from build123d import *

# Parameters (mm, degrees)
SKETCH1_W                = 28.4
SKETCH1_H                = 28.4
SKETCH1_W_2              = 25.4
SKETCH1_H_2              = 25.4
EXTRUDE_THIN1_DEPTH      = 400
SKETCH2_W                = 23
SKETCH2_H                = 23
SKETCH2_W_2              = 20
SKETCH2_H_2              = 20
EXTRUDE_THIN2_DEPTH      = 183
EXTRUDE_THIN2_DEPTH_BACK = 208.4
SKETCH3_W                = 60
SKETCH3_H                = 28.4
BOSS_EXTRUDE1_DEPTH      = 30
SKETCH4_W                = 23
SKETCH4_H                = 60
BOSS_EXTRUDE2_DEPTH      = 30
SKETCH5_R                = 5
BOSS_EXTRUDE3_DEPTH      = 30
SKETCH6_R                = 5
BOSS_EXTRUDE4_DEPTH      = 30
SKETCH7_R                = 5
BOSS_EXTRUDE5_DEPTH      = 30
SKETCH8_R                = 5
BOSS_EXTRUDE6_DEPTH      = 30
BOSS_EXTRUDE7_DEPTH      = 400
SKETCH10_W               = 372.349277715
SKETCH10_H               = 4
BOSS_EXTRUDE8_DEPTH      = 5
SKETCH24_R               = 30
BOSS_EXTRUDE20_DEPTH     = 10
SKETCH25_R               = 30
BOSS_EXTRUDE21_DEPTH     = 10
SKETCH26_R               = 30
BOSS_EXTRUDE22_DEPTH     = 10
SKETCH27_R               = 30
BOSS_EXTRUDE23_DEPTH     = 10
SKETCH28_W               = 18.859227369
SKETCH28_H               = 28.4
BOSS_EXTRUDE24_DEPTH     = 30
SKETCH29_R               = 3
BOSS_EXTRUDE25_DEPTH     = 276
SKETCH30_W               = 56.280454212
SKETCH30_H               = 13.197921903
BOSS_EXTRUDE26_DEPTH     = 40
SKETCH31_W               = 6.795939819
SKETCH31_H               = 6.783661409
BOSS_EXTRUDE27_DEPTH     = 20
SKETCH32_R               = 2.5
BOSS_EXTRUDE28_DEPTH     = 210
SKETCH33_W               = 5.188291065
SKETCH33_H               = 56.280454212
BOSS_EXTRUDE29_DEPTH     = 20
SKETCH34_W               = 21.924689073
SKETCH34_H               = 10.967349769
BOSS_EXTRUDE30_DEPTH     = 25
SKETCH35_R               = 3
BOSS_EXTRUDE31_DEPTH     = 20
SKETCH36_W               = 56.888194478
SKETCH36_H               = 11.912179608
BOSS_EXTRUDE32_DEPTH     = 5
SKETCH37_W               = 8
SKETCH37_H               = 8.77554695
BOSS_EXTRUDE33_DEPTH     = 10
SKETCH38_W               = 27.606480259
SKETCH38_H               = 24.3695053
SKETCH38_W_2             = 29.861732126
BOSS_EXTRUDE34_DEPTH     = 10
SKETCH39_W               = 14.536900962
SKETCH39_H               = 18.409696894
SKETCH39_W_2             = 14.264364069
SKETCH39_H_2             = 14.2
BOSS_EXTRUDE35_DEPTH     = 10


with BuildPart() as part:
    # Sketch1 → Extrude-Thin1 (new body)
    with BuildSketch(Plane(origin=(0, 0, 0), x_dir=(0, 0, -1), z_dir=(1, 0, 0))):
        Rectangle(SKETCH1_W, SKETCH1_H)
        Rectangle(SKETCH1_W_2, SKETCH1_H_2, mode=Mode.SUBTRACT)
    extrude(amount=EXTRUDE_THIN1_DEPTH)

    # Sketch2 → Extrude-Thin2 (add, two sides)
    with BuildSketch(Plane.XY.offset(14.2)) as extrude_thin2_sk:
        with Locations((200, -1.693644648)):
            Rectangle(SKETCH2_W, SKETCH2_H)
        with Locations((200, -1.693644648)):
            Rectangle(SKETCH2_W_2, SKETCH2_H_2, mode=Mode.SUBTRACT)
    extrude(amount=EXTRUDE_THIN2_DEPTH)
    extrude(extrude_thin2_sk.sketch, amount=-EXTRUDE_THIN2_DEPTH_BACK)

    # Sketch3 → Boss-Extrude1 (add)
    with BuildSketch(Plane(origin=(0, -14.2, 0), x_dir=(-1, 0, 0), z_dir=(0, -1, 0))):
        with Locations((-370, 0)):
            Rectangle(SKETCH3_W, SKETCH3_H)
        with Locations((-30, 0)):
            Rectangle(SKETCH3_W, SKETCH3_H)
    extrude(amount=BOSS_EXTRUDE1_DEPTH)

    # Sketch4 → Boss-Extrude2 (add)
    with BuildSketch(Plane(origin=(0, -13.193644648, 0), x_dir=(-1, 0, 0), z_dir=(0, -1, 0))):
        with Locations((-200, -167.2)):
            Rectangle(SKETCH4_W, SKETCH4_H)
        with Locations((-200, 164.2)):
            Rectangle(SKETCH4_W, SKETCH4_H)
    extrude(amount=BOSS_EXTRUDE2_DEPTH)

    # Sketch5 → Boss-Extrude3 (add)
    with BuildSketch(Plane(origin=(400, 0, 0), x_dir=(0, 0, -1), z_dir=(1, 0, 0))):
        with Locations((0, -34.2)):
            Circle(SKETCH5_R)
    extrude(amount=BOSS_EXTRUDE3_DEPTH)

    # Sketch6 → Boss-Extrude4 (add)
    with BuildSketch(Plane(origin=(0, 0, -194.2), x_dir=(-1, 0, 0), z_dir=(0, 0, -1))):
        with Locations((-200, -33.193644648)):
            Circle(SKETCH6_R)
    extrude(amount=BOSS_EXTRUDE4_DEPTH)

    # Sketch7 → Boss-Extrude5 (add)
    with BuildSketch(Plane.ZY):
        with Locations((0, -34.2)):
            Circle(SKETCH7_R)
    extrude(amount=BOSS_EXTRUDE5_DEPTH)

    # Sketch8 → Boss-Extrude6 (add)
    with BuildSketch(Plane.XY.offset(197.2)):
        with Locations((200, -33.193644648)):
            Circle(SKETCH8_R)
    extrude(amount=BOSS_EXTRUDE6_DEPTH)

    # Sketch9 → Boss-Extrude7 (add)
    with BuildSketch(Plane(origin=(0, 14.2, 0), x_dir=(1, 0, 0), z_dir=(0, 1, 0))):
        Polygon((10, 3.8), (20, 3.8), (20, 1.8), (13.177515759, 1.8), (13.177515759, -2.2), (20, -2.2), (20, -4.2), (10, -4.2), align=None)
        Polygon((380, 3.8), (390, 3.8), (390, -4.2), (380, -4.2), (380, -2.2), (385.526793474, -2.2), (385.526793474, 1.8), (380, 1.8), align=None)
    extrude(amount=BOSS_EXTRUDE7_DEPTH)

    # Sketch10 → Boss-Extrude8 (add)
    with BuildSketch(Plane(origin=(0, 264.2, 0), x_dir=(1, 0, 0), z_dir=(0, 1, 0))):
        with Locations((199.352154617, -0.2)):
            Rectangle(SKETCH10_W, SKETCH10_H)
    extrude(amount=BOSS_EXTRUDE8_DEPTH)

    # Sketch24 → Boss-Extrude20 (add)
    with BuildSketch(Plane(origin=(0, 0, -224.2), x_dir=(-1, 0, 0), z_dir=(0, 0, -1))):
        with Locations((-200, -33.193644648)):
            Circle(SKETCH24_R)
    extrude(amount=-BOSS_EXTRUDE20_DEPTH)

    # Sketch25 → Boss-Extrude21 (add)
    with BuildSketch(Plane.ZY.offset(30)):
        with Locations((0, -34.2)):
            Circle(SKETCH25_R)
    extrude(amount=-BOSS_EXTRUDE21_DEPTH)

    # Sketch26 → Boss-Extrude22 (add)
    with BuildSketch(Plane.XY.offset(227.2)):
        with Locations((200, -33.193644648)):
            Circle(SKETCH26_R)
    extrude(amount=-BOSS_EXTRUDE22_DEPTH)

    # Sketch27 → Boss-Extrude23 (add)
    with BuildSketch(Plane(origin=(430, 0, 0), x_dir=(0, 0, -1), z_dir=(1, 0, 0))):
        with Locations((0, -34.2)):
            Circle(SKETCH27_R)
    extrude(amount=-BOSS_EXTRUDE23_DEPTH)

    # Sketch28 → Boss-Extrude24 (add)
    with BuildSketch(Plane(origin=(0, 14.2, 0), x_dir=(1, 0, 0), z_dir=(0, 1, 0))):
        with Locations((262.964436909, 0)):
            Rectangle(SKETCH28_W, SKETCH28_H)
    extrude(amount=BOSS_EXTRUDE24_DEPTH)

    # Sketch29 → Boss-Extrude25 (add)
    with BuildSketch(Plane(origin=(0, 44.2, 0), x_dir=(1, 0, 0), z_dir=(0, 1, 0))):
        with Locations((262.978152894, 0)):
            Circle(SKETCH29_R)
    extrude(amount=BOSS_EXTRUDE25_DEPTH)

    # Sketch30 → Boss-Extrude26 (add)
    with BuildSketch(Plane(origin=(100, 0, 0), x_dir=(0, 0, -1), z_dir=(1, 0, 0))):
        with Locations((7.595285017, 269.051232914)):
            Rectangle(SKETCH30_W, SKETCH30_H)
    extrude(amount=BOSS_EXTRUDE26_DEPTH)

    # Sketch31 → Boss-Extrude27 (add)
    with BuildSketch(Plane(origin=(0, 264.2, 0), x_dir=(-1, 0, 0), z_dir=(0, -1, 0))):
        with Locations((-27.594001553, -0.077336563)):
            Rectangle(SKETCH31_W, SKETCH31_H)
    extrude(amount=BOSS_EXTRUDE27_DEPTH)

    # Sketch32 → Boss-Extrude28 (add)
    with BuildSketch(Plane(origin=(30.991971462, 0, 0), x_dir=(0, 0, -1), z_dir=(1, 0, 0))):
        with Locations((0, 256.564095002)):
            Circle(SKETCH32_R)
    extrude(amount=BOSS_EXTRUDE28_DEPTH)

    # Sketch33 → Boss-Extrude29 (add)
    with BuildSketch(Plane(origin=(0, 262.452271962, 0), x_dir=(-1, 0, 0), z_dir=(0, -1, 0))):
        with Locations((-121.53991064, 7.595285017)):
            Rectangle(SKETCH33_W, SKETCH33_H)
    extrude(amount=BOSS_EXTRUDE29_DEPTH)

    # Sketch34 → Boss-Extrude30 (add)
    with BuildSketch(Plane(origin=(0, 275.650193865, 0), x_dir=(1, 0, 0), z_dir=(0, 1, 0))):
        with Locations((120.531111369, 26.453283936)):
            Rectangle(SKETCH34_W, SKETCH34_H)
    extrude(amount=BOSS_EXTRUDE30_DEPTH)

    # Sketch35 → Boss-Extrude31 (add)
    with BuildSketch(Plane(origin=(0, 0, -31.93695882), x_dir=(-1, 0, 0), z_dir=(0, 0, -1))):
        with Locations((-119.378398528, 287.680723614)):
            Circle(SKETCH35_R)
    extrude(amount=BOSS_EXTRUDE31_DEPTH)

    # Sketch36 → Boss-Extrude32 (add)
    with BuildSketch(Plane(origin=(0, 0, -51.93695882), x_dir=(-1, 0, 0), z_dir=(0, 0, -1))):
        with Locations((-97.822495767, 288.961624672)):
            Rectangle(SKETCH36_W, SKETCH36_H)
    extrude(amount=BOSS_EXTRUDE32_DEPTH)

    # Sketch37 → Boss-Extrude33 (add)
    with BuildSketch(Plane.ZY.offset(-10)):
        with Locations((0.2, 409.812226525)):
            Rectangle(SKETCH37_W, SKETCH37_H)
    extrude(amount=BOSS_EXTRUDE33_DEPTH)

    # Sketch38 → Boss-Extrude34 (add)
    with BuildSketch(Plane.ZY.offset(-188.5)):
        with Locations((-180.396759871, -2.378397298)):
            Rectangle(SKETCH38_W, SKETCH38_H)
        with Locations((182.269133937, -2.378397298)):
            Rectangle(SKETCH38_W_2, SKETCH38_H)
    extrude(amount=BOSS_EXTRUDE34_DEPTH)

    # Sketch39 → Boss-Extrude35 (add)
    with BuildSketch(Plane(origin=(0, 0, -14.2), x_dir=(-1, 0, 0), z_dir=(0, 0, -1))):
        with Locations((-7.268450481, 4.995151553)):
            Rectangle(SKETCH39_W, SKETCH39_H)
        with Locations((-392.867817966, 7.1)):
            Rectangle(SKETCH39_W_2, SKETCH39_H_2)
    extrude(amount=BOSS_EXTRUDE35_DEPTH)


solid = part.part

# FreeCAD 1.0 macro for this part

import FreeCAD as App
import Part
import Sketcher

V = App.Vector
Q = App.Units.Quantity


def add_polygon(sketch, points):
    """Adds a closed chain of lines whose ends are joined by coincident constraints."""
    first, n = sketch.GeometryCount, len(points)
    for a, b in zip(points, points[1:] + points[:1]):
        sketch.addGeometry(Part.LineSegment(App.Vector(*a, 0), App.Vector(*b, 0)), False)
    for i in range(n):
        sketch.addConstraint(Sketcher.Constraint("Coincident", first + i, 2, first + (i + 1) % n, 1))

doc = App.newDocument("Part")
body = doc.addObject("PartDesign::Body", "Body")

sketch1 = doc.addObject("Sketcher::SketchObject", "Sketch")
body.addObject(sketch1)
sketch1.AttachmentSupport = (doc.YZ_Plane, [""])
sketch1.MapMode = "FlatFace"
add_polygon(sketch1, [(14, 14), (-14, 14), (-14, -14), (14, -14)])
add_polygon(sketch1, [(-13, -13), (-13, 13), (13, 13), (13, -13)])
sketch1.addConstraint([
    Sketcher.Constraint("Horizontal", 0),
    Sketcher.Constraint("Vertical", 1),
    Sketcher.Constraint("Horizontal", 2),
    Sketcher.Constraint("Vertical", 3),
    Sketcher.Constraint("Vertical", 4),
    Sketcher.Constraint("Horizontal", 5),
    Sketcher.Constraint("Vertical", 6),
    Sketcher.Constraint("Horizontal", 7),
    Sketcher.Constraint("Symmetric", 0, 2, 2, 2, -1, 1),
    Sketcher.Constraint("Symmetric", 4, 2, 6, 2, -1, 1),
    Sketcher.Constraint("Equal", 2, 1),
    Sketcher.Constraint("Equal", 7, 4),
    Sketcher.Constraint("DistanceX", 0, 2, 0, 1, Q("28.4 mm")),
    Sketcher.Constraint("DistanceX", 5, 1, 5, 2, Q("25.4 mm")),
])
pad1 = doc.addObject("PartDesign::Pad", "Pad")
body.addObject(pad1)
pad1.Profile = sketch1
pad1.Length = 400

sketch2 = doc.addObject("Sketcher::SketchObject", "Sketch001")
body.addObject(sketch2)
sketch2.AttachmentSupport = (doc.XY_Plane, [""])
sketch2.MapMode = "FlatFace"
sketch2.AttachmentOffset = App.Placement(V(0, 0, 14.2), App.Rotation())
add_polygon(sketch2, [(188, 10), (188, -13), (212, -13), (212, 10)])
add_polygon(sketch2, [(210, -12), (190, -12), (190, 8), (210, 8)])
sketch2.addConstraint([
    Sketcher.Constraint("Vertical", 0),
    Sketcher.Constraint("Horizontal", 1),
    Sketcher.Constraint("Vertical", 2),
    Sketcher.Constraint("Horizontal", 3),
    Sketcher.Constraint("Horizontal", 4),
    Sketcher.Constraint("Vertical", 5),
    Sketcher.Constraint("Horizontal", 6),
    Sketcher.Constraint("Vertical", 7),
    Sketcher.Constraint("Equal", 3, 0),
    Sketcher.Constraint("Equal", 6, 5),
    Sketcher.Constraint("DistanceX", 1, 1, 1, 2, Q("23 mm")),
    Sketcher.Constraint("DistanceX", 4, 2, 4, 1, Q("20 mm")),
    Sketcher.Constraint("DistanceX", -1, 1, 4, 2, Q("190 mm")),
    Sketcher.Constraint("DistanceX", -1, 1, 0, 2, Q("188.5 mm")),
    Sketcher.Constraint("DistanceY", 0, 2, 4, 2, Q("1.5 mm")),
    Sketcher.Constraint("DistanceY", 0, 2, -1, 1, Q("13.193645 mm")),
])
pad2 = doc.addObject("PartDesign::Pad", "Pad001")
body.addObject(pad2)
pad2.Profile = sketch2
pad2.Type = "TwoLengths"
pad2.Length = 183
pad2.Length2 = 208.4

sketch3 = doc.addObject("Sketcher::SketchObject", "Sketch002")
body.addObject(sketch3)
sketch3.AttachmentSupport = (doc.XZ_Plane, [""])
sketch3.MapMode = "FlatFace"
sketch3.AttachmentOffset = App.Placement(V(0, 0, 14.2), App.Rotation())
add_polygon(sketch3, [(400, -14), (400, 14), (340, 14), (340, -14)])
add_polygon(sketch3, [(60, -14), (60, 14), (0, 14), (0, -14)])
sketch3.addConstraint([
    Sketcher.Constraint("Vertical", 0),
    Sketcher.Constraint("Horizontal", 1),
    Sketcher.Constraint("Vertical", 2),
    Sketcher.Constraint("Horizontal", 3),
    Sketcher.Constraint("Vertical", 4),
    Sketcher.Constraint("Horizontal", 5),
    Sketcher.Constraint("Vertical", 6),
    Sketcher.Constraint("Horizontal", 7),
    Sketcher.Constraint("Symmetric", 5, 2, 6, 2, -1, 1),
    Sketcher.Constraint("Horizontal", 1, 2, 4, 2),
    Sketcher.Constraint("Horizontal", 3, 2, 6, 2),
    Sketcher.Constraint("Equal", 3, 5),
    Sketcher.Constraint("DistanceX", 1, 2, 1, 1, Q("60 mm")),
    Sketcher.Constraint("DistanceY", 0, 1, 0, 2, Q("28.4 mm")),
    Sketcher.Constraint("DistanceX", -1, 1, 0, 2, Q("400 mm")),
])
pad3 = doc.addObject("PartDesign::Pad", "Pad002")
body.addObject(pad3)
pad3.Profile = sketch3
pad3.Length = 30

sketch4 = doc.addObject("Sketcher::SketchObject", "Sketch003")
body.addObject(sketch4)
sketch4.AttachmentSupport = (doc.XZ_Plane, [""])
sketch4.MapMode = "FlatFace"
sketch4.AttachmentOffset = App.Placement(V(0, 0, 13.193645), App.Rotation())
add_polygon(sketch4, [(212, 137), (212, 197), (188, 197), (188, 137)])
add_polygon(sketch4, [(212, -194), (212, -134), (188, -134), (188, -194)])
sketch4.addConstraint([
    Sketcher.Constraint("Vertical", 0),
    Sketcher.Constraint("Horizontal", 1),
    Sketcher.Constraint("Vertical", 2),
    Sketcher.Constraint("Horizontal", 3),
    Sketcher.Constraint("Vertical", 4),
    Sketcher.Constraint("Horizontal", 5),
    Sketcher.Constraint("Vertical", 6),
    Sketcher.Constraint("Horizontal", 7),
    Sketcher.Constraint("Vertical", 3, 2, 4, 2),
    Sketcher.Constraint("Vertical", 2, 2, 5, 2),
    Sketcher.Constraint("Equal", 2, 4),
    Sketcher.Constraint("DistanceX", 1, 2, 1, 1, Q("23 mm")),
    Sketcher.Constraint("DistanceY", 0, 1, 0, 2, Q("60 mm")),
    Sketcher.Constraint("DistanceX", -1, 1, 0, 2, Q("211.5 mm")),
    Sketcher.Constraint("DistanceY", -1, 1, 0, 2, Q("197.2 mm")),
    Sketcher.Constraint("DistanceY", 4, 2, -1, 1, Q("134.2 mm")),
])
pad4 = doc.addObject("PartDesign::Pad", "Pad003")
body.addObject(pad4)
pad4.Profile = sketch4
pad4.Length = 30

sketch5 = doc.addObject("Sketcher::SketchObject", "Sketch004")
body.addObject(sketch5)
sketch5.AttachmentSupport = (doc.YZ_Plane, [""])
sketch5.MapMode = "FlatFace"
sketch5.AttachmentOffset = App.Placement(V(0, 0, 400), App.Rotation())
sketch5.addGeometry(Part.Circle(V(-34, 0, 0), V(0, 0, 1), 5), False)
sketch5.addConstraint([
    Sketcher.Constraint("PointOnObject", 0, 3, -1),
    Sketcher.Constraint("Diameter", 0, Q("10 mm")),
    Sketcher.Constraint("DistanceX", 0, 3, -1, 1, Q("34.2 mm")),
])
pad5 = doc.addObject("PartDesign::Pad", "Pad004")
body.addObject(pad5)
pad5.Profile = sketch5
pad5.Length = 30

sketch6 = doc.addObject("Sketcher::SketchObject", "Sketch005")
body.addObject(sketch6)
sketch6.AttachmentSupport = (doc.XY_Plane, [""])
sketch6.MapMode = "FlatFace"
sketch6.AttachmentOffset = App.Placement(V(0, 0, -194.2), App.Rotation())
sketch6.addGeometry(Part.Circle(V(200, -33, 0), V(0, 0, 1), 5), False)
sketch6.addConstraint([
    Sketcher.Constraint("Diameter", 0, Q("10 mm")),
    Sketcher.Constraint("DistanceX", -1, 1, 0, 3, Q("200 mm")),
    Sketcher.Constraint("DistanceY", 0, 3, -1, 1, Q("33.193645 mm")),
])
pad6 = doc.addObject("PartDesign::Pad", "Pad005")
body.addObject(pad6)
pad6.Profile = sketch6
pad6.Length = 30
pad6.Reversed = True

sketch7 = doc.addObject("Sketcher::SketchObject", "Sketch006")
body.addObject(sketch7)
sketch7.AttachmentSupport = (doc.YZ_Plane, [""])
sketch7.MapMode = "FlatFace"
sketch7.addGeometry(Part.Circle(V(-34, 0, 0), V(0, 0, 1), 5), False)
sketch7.addConstraint([
    Sketcher.Constraint("PointOnObject", 0, 3, -1),
    Sketcher.Constraint("Diameter", 0, Q("10 mm")),
    Sketcher.Constraint("DistanceX", 0, 3, -1, 1, Q("34.2 mm")),
])
pad7 = doc.addObject("PartDesign::Pad", "Pad006")
body.addObject(pad7)
pad7.Profile = sketch7
pad7.Length = 30
pad7.Reversed = True

sketch8 = doc.addObject("Sketcher::SketchObject", "Sketch007")
body.addObject(sketch8)
sketch8.AttachmentSupport = (doc.XY_Plane, [""])
sketch8.MapMode = "FlatFace"
sketch8.AttachmentOffset = App.Placement(V(0, 0, 197.2), App.Rotation())
sketch8.addGeometry(Part.Circle(V(200, -33, 0), V(0, 0, 1), 5), False)
sketch8.addConstraint([
    Sketcher.Constraint("Diameter", 0, Q("10 mm")),
    Sketcher.Constraint("DistanceX", -1, 1, 0, 3, Q("200 mm")),
    Sketcher.Constraint("DistanceY", 0, 3, -1, 1, Q("33.193645 mm")),
])
pad8 = doc.addObject("PartDesign::Pad", "Pad007")
body.addObject(pad8)
pad8.Profile = sketch8
pad8.Length = 30

sketch9 = doc.addObject("Sketcher::SketchObject", "Sketch008")
body.addObject(sketch9)
sketch9.AttachmentSupport = (doc.XZ_Plane, [""])
sketch9.MapMode = "FlatFace"
sketch9.AttachmentOffset = App.Placement(V(0, 0, -14.2), App.Rotation())
add_polygon(sketch9, [(20, -3.8), (10, -3.8), (10, 4.2), (20, 4.2), (20, 2.2), (13.2, 2.2), (13.2, -1.8), (20, -1.8)])
add_polygon(sketch9, [(390, -3.8), (380, -3.8), (380, -1.8), (385.5, -1.8), (385.5, 2.2), (380, 2.2), (380, 4.2), (390, 4.2)])
sketch9.addConstraint([
    Sketcher.Constraint("Horizontal", 0),
    Sketcher.Constraint("Vertical", 1),
    Sketcher.Constraint("Horizontal", 2),
    Sketcher.Constraint("Vertical", 3),
    Sketcher.Constraint("Horizontal", 4),
    Sketcher.Constraint("Vertical", 5),
    Sketcher.Constraint("Horizontal", 6),
    Sketcher.Constraint("Vertical", 7),
    Sketcher.Constraint("Horizontal", 8),
    Sketcher.Constraint("Vertical", 9),
    Sketcher.Constraint("Horizontal", 10),
    Sketcher.Constraint("Vertical", 11),
    Sketcher.Constraint("Horizontal", 12),
    Sketcher.Constraint("Vertical", 13),
    Sketcher.Constraint("Horizontal", 14),
    Sketcher.Constraint("Vertical", 15),
    Sketcher.Constraint("Horizontal", 7, 2, 8, 2),
    Sketcher.Constraint("Horizontal", 6, 2, 9, 2),
    Sketcher.Constraint("Horizontal", 4, 2, 11, 2),
    Sketcher.Constraint("Horizontal", 2, 2, 13, 2),
    Sketcher.Constraint("Vertical", 3, 2, 6, 2),
    Sketcher.Constraint("Vertical", 9, 2, 12, 2),
    Sketcher.Constraint("Equal", 2, 8),
    Sketcher.Constraint("Equal", 3, 7),
    Sketcher.Constraint("DistanceX", 0, 2, 0, 1, Q("10 mm")),
    Sketcher.Constraint("DistanceY", 1, 1, 1, 2, Q("8 mm")),
    Sketcher.Constraint("DistanceY", 3, 2, 3, 1, Q("2 mm")),
    Sketcher.Constraint("DistanceX", -1, 1, 0, 2, Q("10 mm")),
    Sketcher.Constraint("DistanceX", -1, 1, 8, 2, Q("380 mm")),
    Sketcher.Constraint("DistanceY", 0, 2, -1, 1, Q("3.8 mm")),
    Sketcher.Constraint("DistanceX", 4, 2, 4, 1, Q("6.822484 mm")),
    Sketcher.Constraint("DistanceX", 10, 1, 10, 2, Q("5.526793 mm")),
])
pad9 = doc.addObject("PartDesign::Pad", "Pad008")
body.addObject(pad9)
pad9.Profile = sketch9
pad9.Length = 400
pad9.Reversed = True

sketch10 = doc.addObject("Sketcher::SketchObject", "Sketch009")
body.addObject(sketch10)
sketch10.AttachmentSupport = (doc.XZ_Plane, [""])
sketch10.MapMode = "FlatFace"
sketch10.AttachmentOffset = App.Placement(V(0, 0, -264.2), App.Rotation())
add_polygon(sketch10, [(13.2, -1.8), (13.2, 2.2), (385.5, 2.2), (385.5, -1.8)])
sketch10.addConstraint([
    Sketcher.Constraint("Vertical", 0),
    Sketcher.Constraint("Horizontal", 1),
    Sketcher.Constraint("Vertical", 2),
    Sketcher.Constraint("Horizontal", 3),
    Sketcher.Constraint("DistanceY", 0, 1, 0, 2, Q("4 mm")),
    Sketcher.Constraint("DistanceY", -1, 1, 0, 2, Q("2.2 mm")),
    Sketcher.Constraint("DistanceX", 1, 1, 1, 2, Q("372.349278 mm")),
    Sketcher.Constraint("DistanceX", -1, 1, 0, 2, Q("13.177516 mm")),
])
pad10 = doc.addObject("PartDesign::Pad", "Pad009")
body.addObject(pad10)
pad10.Profile = sketch10
pad10.Length = 5
pad10.Reversed = True

sketch11 = doc.addObject("Sketcher::SketchObject", "Sketch010")
body.addObject(sketch11)
sketch11.AttachmentSupport = (doc.XY_Plane, [""])
sketch11.MapMode = "FlatFace"
sketch11.AttachmentOffset = App.Placement(V(0, 0, -224.2), App.Rotation())
sketch11.addGeometry(Part.Circle(V(200, -33, 0), V(0, 0, 1), 30), False)
sketch11.addConstraint([
    Sketcher.Constraint("Diameter", 0, Q("60 mm")),
    Sketcher.Constraint("DistanceX", -1, 1, 0, 3, Q("200 mm")),
    Sketcher.Constraint("DistanceY", 0, 3, -1, 1, Q("33.193645 mm")),
])
pad11 = doc.addObject("PartDesign::Pad", "Pad010")
body.addObject(pad11)
pad11.Profile = sketch11
pad11.Length = 10

sketch12 = doc.addObject("Sketcher::SketchObject", "Sketch011")
body.addObject(sketch12)
sketch12.AttachmentSupport = (doc.YZ_Plane, [""])
sketch12.MapMode = "FlatFace"
sketch12.AttachmentOffset = App.Placement(V(0, 0, -30), App.Rotation())
sketch12.addGeometry(Part.Circle(V(-34, 0, 0), V(0, 0, 1), 30), False)
sketch12.addConstraint([
    Sketcher.Constraint("PointOnObject", 0, 3, -1),
    Sketcher.Constraint("Diameter", 0, Q("60 mm")),
    Sketcher.Constraint("DistanceX", 0, 3, -1, 1, Q("34.2 mm")),
])
pad12 = doc.addObject("PartDesign::Pad", "Pad011")
body.addObject(pad12)
pad12.Profile = sketch12
pad12.Length = 10

sketch13 = doc.addObject("Sketcher::SketchObject", "Sketch012")
body.addObject(sketch13)
sketch13.AttachmentSupport = (doc.XY_Plane, [""])
sketch13.MapMode = "FlatFace"
sketch13.AttachmentOffset = App.Placement(V(0, 0, 227.2), App.Rotation())
sketch13.addGeometry(Part.Circle(V(200, -33, 0), V(0, 0, 1), 30), False)
sketch13.addConstraint([
    Sketcher.Constraint("Diameter", 0, Q("60 mm")),
    Sketcher.Constraint("DistanceX", -1, 1, 0, 3, Q("200 mm")),
    Sketcher.Constraint("DistanceY", 0, 3, -1, 1, Q("33.193645 mm")),
])
pad13 = doc.addObject("PartDesign::Pad", "Pad012")
body.addObject(pad13)
pad13.Profile = sketch13
pad13.Length = 10
pad13.Reversed = True

sketch14 = doc.addObject("Sketcher::SketchObject", "Sketch013")
body.addObject(sketch14)
sketch14.AttachmentSupport = (doc.YZ_Plane, [""])
sketch14.MapMode = "FlatFace"
sketch14.AttachmentOffset = App.Placement(V(0, 0, 430), App.Rotation())
sketch14.addGeometry(Part.Circle(V(-34, 0, 0), V(0, 0, 1), 30), False)
sketch14.addConstraint([
    Sketcher.Constraint("PointOnObject", 0, 3, -1),
    Sketcher.Constraint("Diameter", 0, Q("60 mm")),
    Sketcher.Constraint("DistanceX", 0, 3, -1, 1, Q("34.2 mm")),
])
pad14 = doc.addObject("PartDesign::Pad", "Pad013")
body.addObject(pad14)
pad14.Profile = sketch14
pad14.Length = 10
pad14.Reversed = True

sketch15 = doc.addObject("Sketcher::SketchObject", "Sketch014")
body.addObject(sketch15)
sketch15.AttachmentSupport = (doc.XZ_Plane, [""])
sketch15.MapMode = "FlatFace"
sketch15.AttachmentOffset = App.Placement(V(0, 0, -14.2), App.Rotation())
add_polygon(sketch15, [(254, -14), (254, 14), (272, 14), (272, -14)])
sketch15.addConstraint([
    Sketcher.Constraint("Vertical", 0),
    Sketcher.Constraint("Horizontal", 1),
    Sketcher.Constraint("Vertical", 2),
    Sketcher.Constraint("Horizontal", 3),
    Sketcher.Constraint("DistanceY", 0, 1, 0, 2, Q("28.4 mm")),
    Sketcher.Constraint("DistanceY", -1, 1, 0, 2, Q("14.2 mm")),
    Sketcher.Constraint("DistanceX", 1, 1, 1, 2, Q("18.859227 mm")),
    Sketcher.Constraint("DistanceX", -1, 1, 1, 2, Q("272.394051 mm")),
])
pad15 = doc.addObject("PartDesign::Pad", "Pad014")
body.addObject(pad15)
pad15.Profile = sketch15
pad15.Length = 30
pad15.Reversed = True

sketch16 = doc.addObject("Sketcher::SketchObject", "Sketch015")
body.addObject(sketch16)
sketch16.AttachmentSupport = (doc.XZ_Plane, [""])
sketch16.MapMode = "FlatFace"
sketch16.AttachmentOffset = App.Placement(V(0, 0, -44.2), App.Rotation())
sketch16.addGeometry(Part.Circle(V(263, 0, 0), V(0, 0, 1), 3), False)
sketch16.addConstraint([
    Sketcher.Constraint("PointOnObject", 0, 3, -1),
    Sketcher.Constraint("Diameter", 0, Q("6 mm")),
    Sketcher.Constraint("DistanceX", -1, 1, 0, 3, Q("262.978153 mm")),
])
pad16 = doc.addObject("PartDesign::Pad", "Pad015")
body.addObject(pad16)
pad16.Profile = sketch16
pad16.Length = 276
pad16.Reversed = True

sketch17 = doc.addObject("Sketcher::SketchObject", "Sketch016")
body.addObject(sketch17)
sketch17.AttachmentSupport = (doc.YZ_Plane, [""])
sketch17.MapMode = "FlatFace"
sketch17.AttachmentOffset = App.Placement(V(0, 0, 100), App.Rotation())
add_polygon(sketch17, [(276, 21), (262, 21), (262, -36), (276, -36)])
sketch17.addConstraint([
    Sketcher.Constraint("Horizontal", 0),
    Sketcher.Constraint("Vertical", 1),
    Sketcher.Constraint("Horizontal", 2),
    Sketcher.Constraint("Vertical", 3),
    Sketcher.Constraint("DistanceX", 0, 2, 0, 1, Q("13.197922 mm")),
    Sketcher.Constraint("DistanceY", 1, 2, 1, 1, Q("56.280454 mm")),
    Sketcher.Constraint("DistanceX", -1, 1, 0, 2, Q("262.452272 mm")),
    Sketcher.Constraint("DistanceY", -1, 1, 0, 2, Q("20.544942 mm")),
])
pad17 = doc.addObject("PartDesign::Pad", "Pad016")
body.addObject(pad17)
pad17.Profile = sketch17
pad17.Length = 40

sketch18 = doc.addObject("Sketcher::SketchObject", "Sketch017")
body.addObject(sketch18)
sketch18.AttachmentSupport = (doc.XZ_Plane, [""])
sketch18.MapMode = "FlatFace"
sketch18.AttachmentOffset = App.Placement(V(0, 0, -264.2), App.Rotation())
add_polygon(sketch18, [(31, -3), (31, 3), (24, 3), (24, -3)])
sketch18.addConstraint([
    Sketcher.Constraint("Vertical", 0),
    Sketcher.Constraint("Horizontal", 1),
    Sketcher.Constraint("Vertical", 2),
    Sketcher.Constraint("Horizontal", 3),
    Sketcher.Constraint("DistanceX", 1, 2, 1, 1, Q("6.79594 mm")),
    Sketcher.Constraint("DistanceY", 0, 1, 0, 2, Q("6.783661 mm")),
    Sketcher.Constraint("DistanceX", -1, 1, 0, 2, Q("30.991971 mm")),
    Sketcher.Constraint("DistanceY", -1, 1, 0, 2, Q("3.469167 mm")),
])
pad18 = doc.addObject("PartDesign::Pad", "Pad017")
body.addObject(pad18)
pad18.Profile = sketch18
pad18.Length = 20

sketch19 = doc.addObject("Sketcher::SketchObject", "Sketch018")
body.addObject(sketch19)
sketch19.AttachmentSupport = (doc.YZ_Plane, [""])
sketch19.MapMode = "FlatFace"
sketch19.AttachmentOffset = App.Placement(V(0, 0, 30.991971), App.Rotation())
sketch19.addGeometry(Part.Circle(V(256.6, 0, 0), V(0, 0, 1), 2.5), False)
sketch19.addConstraint([
    Sketcher.Constraint("PointOnObject", 0, 3, -1),
    Sketcher.Constraint("Diameter", 0, Q("5 mm")),
    Sketcher.Constraint("DistanceX", -1, 1, 0, 3, Q("256.564095 mm")),
])
pad19 = doc.addObject("PartDesign::Pad", "Pad018")
body.addObject(pad19)
pad19.Profile = sketch19
pad19.Length = 210

sketch20 = doc.addObject("Sketcher::SketchObject", "Sketch019")
body.addObject(sketch20)
sketch20.AttachmentSupport = (doc.XZ_Plane, [""])
sketch20.MapMode = "FlatFace"
sketch20.AttachmentOffset = App.Placement(V(0, 0, -262.452272), App.Rotation())
add_polygon(sketch20, [(124, -36), (124, 21), (119, 21), (119, -36)])
sketch20.addConstraint([
    Sketcher.Constraint("Vertical", 0),
    Sketcher.Constraint("Horizontal", 1),
    Sketcher.Constraint("Vertical", 2),
    Sketcher.Constraint("Horizontal", 3),
    Sketcher.Constraint("DistanceX", 1, 2, 1, 1, Q("5.188291 mm")),
    Sketcher.Constraint("DistanceY", 0, 1, 0, 2, Q("56.280454 mm")),
    Sketcher.Constraint("DistanceX", -1, 1, 0, 2, Q("124.134056 mm")),
    Sketcher.Constraint("DistanceY", -1, 1, 0, 2, Q("20.544942 mm")),
])
pad20 = doc.addObject("PartDesign::Pad", "Pad019")
body.addObject(pad20)
pad20.Profile = sketch20
pad20.Length = 20

sketch21 = doc.addObject("Sketcher::SketchObject", "Sketch020")
body.addObject(sketch21)
sketch21.AttachmentSupport = (doc.XZ_Plane, [""])
sketch21.MapMode = "FlatFace"
sketch21.AttachmentOffset = App.Placement(V(0, 0, -275.650194), App.Rotation())
add_polygon(sketch21, [(110, -32), (110, -21), (131, -21), (131, -32)])
sketch21.addConstraint([
    Sketcher.Constraint("Vertical", 0),
    Sketcher.Constraint("Horizontal", 1),
    Sketcher.Constraint("Vertical", 2),
    Sketcher.Constraint("Horizontal", 3),
    Sketcher.Constraint("DistanceX", 1, 1, 1, 2, Q("21.924689 mm")),
    Sketcher.Constraint("DistanceY", 0, 1, 0, 2, Q("10.96735 mm")),
    Sketcher.Constraint("DistanceY", 0, 2, -1, 1, Q("20.969609 mm")),
    Sketcher.Constraint("DistanceX", -1, 1, 0, 2, Q("109.568767 mm")),
])
pad21 = doc.addObject("PartDesign::Pad", "Pad020")
body.addObject(pad21)
pad21.Profile = sketch21
pad21.Length = 25
pad21.Reversed = True

sketch22 = doc.addObject("Sketcher::SketchObject", "Sketch021")
body.addObject(sketch22)
sketch22.AttachmentSupport = (doc.XY_Plane, [""])
sketch22.MapMode = "FlatFace"
sketch22.AttachmentOffset = App.Placement(V(0, 0, -31.936959), App.Rotation())
sketch22.addGeometry(Part.Circle(V(119.4, 287.7, 0), V(0, 0, 1), 3), False)
sketch22.addConstraint([
    Sketcher.Constraint("Diameter", 0, Q("6 mm")),
    Sketcher.Constraint("DistanceX", -1, 1, 0, 3, Q("119.378399 mm")),
    Sketcher.Constraint("DistanceY", -1, 1, 0, 3, Q("287.680724 mm")),
])
pad22 = doc.addObject("PartDesign::Pad", "Pad021")
body.addObject(pad22)
pad22.Profile = sketch22
pad22.Length = 20
pad22.Reversed = True

sketch23 = doc.addObject("Sketcher::SketchObject", "Sketch022")
body.addObject(sketch23)
sketch23.AttachmentSupport = (doc.XY_Plane, [""])
sketch23.MapMode = "FlatFace"
sketch23.AttachmentOffset = App.Placement(V(0, 0, -51.936959), App.Rotation())
add_polygon(sketch23, [(126, 295), (126, 283), (69, 283), (69, 295)])
sketch23.addConstraint([
    Sketcher.Constraint("Vertical", 0),
    Sketcher.Constraint("Horizontal", 1),
    Sketcher.Constraint("Vertical", 2),
    Sketcher.Constraint("Horizontal", 3),
    Sketcher.Constraint("DistanceY", 0, 2, 0, 1, Q("11.91218 mm")),
    Sketcher.Constraint("DistanceX", -1, 1, 1, 2, Q("69.378399 mm")),
    Sketcher.Constraint("DistanceX", 1, 2, 1, 1, Q("56.888194 mm")),
    Sketcher.Constraint("DistanceY", -1, 1, 0, 2, Q("283.005535 mm")),
])
pad23 = doc.addObject("PartDesign::Pad", "Pad022")
body.addObject(pad23)
pad23.Profile = sketch23
pad23.Length = 5
pad23.Reversed = True

sketch24 = doc.addObject("Sketcher::SketchObject", "Sketch023")
body.addObject(sketch24)
sketch24.AttachmentSupport = (doc.YZ_Plane, [""])
sketch24.MapMode = "FlatFace"
sketch24.AttachmentOffset = App.Placement(V(0, 0, 10), App.Rotation())
add_polygon(sketch24, [(414, -4), (405, -4), (405, 4), (414, 4)])
sketch24.addConstraint([
    Sketcher.Constraint("Horizontal", 0),
    Sketcher.Constraint("Vertical", 1),
    Sketcher.Constraint("Horizontal", 2),
    Sketcher.Constraint("Vertical", 3),
    Sketcher.Constraint("DistanceY", 1, 1, 1, 2, Q("8 mm")),
    Sketcher.Constraint("DistanceY", 0, 2, -1, 1, Q("3.8 mm")),
    Sketcher.Constraint("DistanceX", -1, 1, 2, 2, Q("414.2 mm")),
    Sketcher.Constraint("DistanceX", 0, 2, 0, 1, Q("8.775547 mm")),
])
pad24 = doc.addObject("PartDesign::Pad", "Pad023")
body.addObject(pad24)
pad24.Profile = sketch24
pad24.Length = 10
pad24.Reversed = True

sketch25 = doc.addObject("Sketcher::SketchObject", "Sketch024")
body.addObject(sketch25)
sketch25.AttachmentSupport = (doc.YZ_Plane, [""])
sketch25.MapMode = "FlatFace"
sketch25.AttachmentOffset = App.Placement(V(0, 0, 188.5), App.Rotation())
add_polygon(sketch25, [(10, -194), (-15, -194), (-15, -167), (10, -167)])
add_polygon(sketch25, [(10, 167), (-15, 167), (-15, 197), (10, 197)])
sketch25.addConstraint([
    Sketcher.Constraint("Horizontal", 0),
    Sketcher.Constraint("Vertical", 1),
    Sketcher.Constraint("Horizontal", 2),
    Sketcher.Constraint("Vertical", 3),
    Sketcher.Constraint("Horizontal", 4),
    Sketcher.Constraint("Vertical", 5),
    Sketcher.Constraint("Horizontal", 6),
    Sketcher.Constraint("Vertical", 7),
    Sketcher.Constraint("Vertical", 1, 2, 4, 2),
    Sketcher.Constraint("Vertical", 3, 2, 6, 2),
    Sketcher.Constraint("DistanceY", 0, 2, -1, 1, Q("194.2 mm")),
    Sketcher.Constraint("DistanceY", -1, 1, 5, 2, Q("197.2 mm")),
    Sketcher.Constraint("DistanceY", 1, 1, 1, 2, Q("27.60648 mm")),
    Sketcher.Constraint("DistanceX", 0, 2, 0, 1, Q("24.369505 mm")),
    Sketcher.Constraint("DistanceY", 5, 1, 5, 2, Q("29.861732 mm")),
    Sketcher.Constraint("DistanceX", 0, 2, -1, 1, Q("14.56315 mm")),
])
pad25 = doc.addObject("PartDesign::Pad", "Pad024")
body.addObject(pad25)
pad25.Profile = sketch25
pad25.Length = 10
pad25.Reversed = True

sketch26 = doc.addObject("Sketcher::SketchObject", "Sketch025")
body.addObject(sketch26)
sketch26.AttachmentSupport = (doc.XY_Plane, [""])
sketch26.MapMode = "FlatFace"
sketch26.AttachmentOffset = App.Placement(V(0, 0, -14.2), App.Rotation())
add_polygon(sketch26, [(15, 14), (15, -4), (0, -4), (0, 14)])
add_polygon(sketch26, [(400, 14), (400, 0), (386, 0), (386, 14)])
sketch26.addConstraint([
    Sketcher.Constraint("Vertical", 0),
    Sketcher.Constraint("Horizontal", 1),
    Sketcher.Constraint("Vertical", 2),
    Sketcher.Constraint("Horizontal", 3),
    Sketcher.Constraint("Vertical", 4),
    Sketcher.Constraint("Horizontal", 5),
    Sketcher.Constraint("Vertical", 6),
    Sketcher.Constraint("Horizontal", 7),
    Sketcher.Constraint("PointOnObject", 1, 2, -2),
    Sketcher.Constraint("PointOnObject", 4, 2, -1),
    Sketcher.Constraint("Horizontal", 3, 2, 6, 2),
    Sketcher.Constraint("DistanceY", 4, 2, 4, 1, Q("14.2 mm")),
    Sketcher.Constraint("DistanceX", -1, 1, 4, 2, Q("400 mm")),
    Sketcher.Constraint("DistanceX", 1, 2, 1, 1, Q("14.536901 mm")),
    Sketcher.Constraint("DistanceX", 5, 2, 5, 1, Q("14.264364 mm")),
    Sketcher.Constraint("DistanceY", 0, 2, 0, 1, Q("18.409697 mm")),
])
pad26 = doc.addObject("PartDesign::Pad", "Pad025")
body.addObject(pad26)
pad26.Profile = sketch26
pad26.Length = 10
pad26.Reversed = True

doc.recompute()
